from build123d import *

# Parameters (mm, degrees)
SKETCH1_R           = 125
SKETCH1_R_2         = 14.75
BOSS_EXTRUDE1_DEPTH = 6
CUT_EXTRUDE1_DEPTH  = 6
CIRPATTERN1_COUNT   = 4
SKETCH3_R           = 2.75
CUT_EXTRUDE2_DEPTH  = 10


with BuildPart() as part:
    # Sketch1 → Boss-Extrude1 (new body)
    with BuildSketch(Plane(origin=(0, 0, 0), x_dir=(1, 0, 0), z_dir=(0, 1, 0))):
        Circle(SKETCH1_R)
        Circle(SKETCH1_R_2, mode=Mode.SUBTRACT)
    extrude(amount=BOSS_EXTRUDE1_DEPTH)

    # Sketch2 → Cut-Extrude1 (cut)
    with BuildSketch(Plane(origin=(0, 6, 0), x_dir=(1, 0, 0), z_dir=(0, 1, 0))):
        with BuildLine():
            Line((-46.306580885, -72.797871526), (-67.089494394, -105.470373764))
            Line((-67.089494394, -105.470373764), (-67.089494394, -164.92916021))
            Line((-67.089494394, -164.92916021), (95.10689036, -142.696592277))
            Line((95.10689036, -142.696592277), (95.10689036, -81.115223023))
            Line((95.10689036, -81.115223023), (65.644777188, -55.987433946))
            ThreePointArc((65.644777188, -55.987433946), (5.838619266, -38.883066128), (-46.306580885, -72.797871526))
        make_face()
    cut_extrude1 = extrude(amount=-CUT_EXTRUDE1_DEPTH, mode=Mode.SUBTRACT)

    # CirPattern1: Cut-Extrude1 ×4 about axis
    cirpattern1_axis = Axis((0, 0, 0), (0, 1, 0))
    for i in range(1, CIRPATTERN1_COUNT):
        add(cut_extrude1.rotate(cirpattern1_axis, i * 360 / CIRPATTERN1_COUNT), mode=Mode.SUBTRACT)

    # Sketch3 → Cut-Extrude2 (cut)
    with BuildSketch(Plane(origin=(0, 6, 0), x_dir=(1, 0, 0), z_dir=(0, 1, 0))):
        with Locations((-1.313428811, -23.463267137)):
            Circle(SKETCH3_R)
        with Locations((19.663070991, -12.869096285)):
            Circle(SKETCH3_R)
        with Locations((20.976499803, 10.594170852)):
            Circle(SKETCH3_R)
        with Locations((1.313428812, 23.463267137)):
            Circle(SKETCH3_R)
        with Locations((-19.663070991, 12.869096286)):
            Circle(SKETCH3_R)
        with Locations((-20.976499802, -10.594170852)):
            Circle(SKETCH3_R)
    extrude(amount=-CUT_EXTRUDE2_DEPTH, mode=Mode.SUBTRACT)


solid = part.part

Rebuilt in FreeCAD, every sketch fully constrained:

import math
import FreeCAD as App
import Part
import Sketcher

doc = App.newDocument("Part")
body = doc.addObject("PartDesign::Body", "Body")

# Sketch on XZ plane
sketch1 = body.newObject("Sketcher::SketchObject", "Sketch")
sketch1.AttachmentSupport = (doc.getObject("XZ_Plane"), [""])
sketch1.MapMode = "FlatFace"
sketch1.addGeometry([
    Part.Circle(App.Vector(0, 0, 0), App.Vector(0, 0, 1), 125),
    Part.Circle(App.Vector(0, 0, 0), App.Vector(0, 0, 1), 14.75),
], False)
sketch1.addConstraint([
    Sketcher.Constraint("Coincident", 0, 3, -1, 1),
    Sketcher.Constraint("Coincident", 1, 3, -1, 1),
    Sketcher.Constraint("Diameter", 0, 250.0),
    Sketcher.Constraint("Diameter", 1, 29.5),
])
pad1 = body.newObject("PartDesign::Pad", "Pad")
pad1.Profile = sketch1
pad1.Length = 6
pad1.Reversed = True

# Sketch on XZ plane
sketch2 = body.newObject("Sketcher::SketchObject", "Sketch001")
sketch2.AttachmentSupport = (doc.getObject("XZ_Plane"), [""])
sketch2.MapMode = "FlatFace"
sketch2.AttachmentOffset = App.Placement(App.Vector(0, 0, -6), App.Rotation())
sketch2.addGeometry([
    Part.LineSegment(App.Vector(-46.306581, 72.797872, 0), App.Vector(-67.089494, 105.470374, 0)),  # 0
    Part.LineSegment(App.Vector(-67.089494, 105.470374, 0), App.Vector(-67.089494, 164.92916, 0)),  # 1
    Part.LineSegment(App.Vector(-67.089494, 164.92916, 0), App.Vector(95.10689, 142.696592, 0)),  # 2
    Part.LineSegment(App.Vector(95.10689, 142.696592, 0), App.Vector(95.10689, 81.115223, 0)),  # 3
    Part.LineSegment(App.Vector(95.10689, 81.115223, 0), App.Vector(65.644777, 55.987434, 0)),  # 4
    Part.ArcOfCircle(Part.Circle(App.Vector(16.975643, 113.051568, 0), App.Vector(0, 0, 1), 75), math.radians(-147.539642), math.radians(-49.539642)),  # 5
], False)
sketch2.addConstraint([
    Sketcher.Constraint("Coincident", 0, 2, 1, 1),
    Sketcher.Constraint("Coincident", 1, 2, 2, 1),
    Sketcher.Constraint("Coincident", 2, 2, 3, 1),
    Sketcher.Constraint("Coincident", 3, 2, 4, 1),
    Sketcher.Constraint("Tangent", 4, 2, 5, 2),
    Sketcher.Constraint("Tangent", 5, 1, 0, 1),
    Sketcher.Constraint("Vertical", 1),
    Sketcher.Constraint("Vertical", 3),
    Sketcher.Constraint("Equal", 0, 4),
    Sketcher.Constraint("Radius", 5, 75.0),
    Sketcher.Constraint("DistanceY", 3, 2, 3, 1, 61.581369),
    Sketcher.Constraint("Distance", 0, 38.722369),
    Sketcher.Constraint("DistanceY", 1, 1, 1, 2, 59.458786),
    Sketcher.Constraint("DistanceY", -1, 1, 5, 3, 113.051568),
    Sketcher.Constraint("DistanceY", -1, 1, 1, 2, 164.92916),
    Sketcher.Constraint("DistanceX", -1, 1, 2, 2, 95.10689),
    Sketcher.Constraint("DistanceX", 5, 1, -1, 1, 46.306581),
])
pocket1 = body.newObject("PartDesign::Pocket", "Pocket")
pocket1.Profile = sketch2
pocket1.Length = 6
pocket1.Reversed = True
doc.recompute()

polarpattern = body.newObject("PartDesign::PolarPattern", "PolarPattern")
polarpattern.Originals = [pocket1]
polarpattern.Axis = (doc.getObject("Y_Axis"), [""])
polarpattern.Angle = 360
polarpattern.Occurrences = 4
body.Tip = polarpattern

# Sketch on XZ plane
sketch3 = body.newObject("Sketcher::SketchObject", "Sketch002")
sketch3.AttachmentSupport = (doc.getObject("XZ_Plane"), [""])
sketch3.MapMode = "FlatFace"
sketch3.AttachmentOffset = App.Placement(App.Vector(0, 0, -6), App.Rotation())
sketch3.addGeometry([
    Part.Circle(App.Vector(-1.313429, 23.463267, 0), App.Vector(0, 0, 1), 2.75),  # 0
    Part.Circle(App.Vector(19.663071, 12.869096, 0), App.Vector(0, 0, 1), 2.75),  # 1
    Part.Circle(App.Vector(20.9765, -10.594171, 0), App.Vector(0, 0, 1), 2.75),  # 2
    Part.Circle(App.Vector(1.313429, -23.463267, 0), App.Vector(0, 0, 1), 2.75),  # 3
    Part.Circle(App.Vector(-19.663071, -12.869096, 0), App.Vector(0, 0, 1), 2.75),  # 4
    Part.Circle(App.Vector(-20.9765, 10.594171, 0), App.Vector(0, 0, 1), 2.75),  # 5
], False)
sketch3.addConstraint([
    Sketcher.Constraint("Equal", 0, 1),
    Sketcher.Constraint("Equal", 1, 2),
    Sketcher.Constraint("Equal", 2, 3),
    Sketcher.Constraint("Equal", 3, 4),
    Sketcher.Constraint("Equal", 4, 5),
    Sketcher.Constraint("Symmetric", 0, 3, 3, 3, -1, 1),
    Sketcher.Constraint("Symmetric", 1, 3, 4, 3, -1, 1),
    Sketcher.Constraint("Symmetric", 2, 3, 5, 3, -1, 1),
    Sketcher.Constraint("Diameter", 0, 5.5),
    Sketcher.Constraint("DistanceX", 5, 3, 2, 3, 41.953),
    Sketcher.Constraint("DistanceX", 0, 3, 1, 3, 20.9765),
    Sketcher.Constraint("DistanceX", 0, 3, -1, 1, 1.313429),
    Sketcher.Constraint("DistanceY", 2, 3, -1, 1, 10.594171),
    Sketcher.Constraint("DistanceY", 1, 3, 0, 3, 10.594171),
    Sketcher.Constraint("DistanceY", -1, 1, 0, 3, 23.463267),
])
pocket2 = body.newObject("PartDesign::Pocket", "Pocket001")
pocket2.Profile = sketch3
pocket2.Length = 10
pocket2.Reversed = True

doc.recompute()
